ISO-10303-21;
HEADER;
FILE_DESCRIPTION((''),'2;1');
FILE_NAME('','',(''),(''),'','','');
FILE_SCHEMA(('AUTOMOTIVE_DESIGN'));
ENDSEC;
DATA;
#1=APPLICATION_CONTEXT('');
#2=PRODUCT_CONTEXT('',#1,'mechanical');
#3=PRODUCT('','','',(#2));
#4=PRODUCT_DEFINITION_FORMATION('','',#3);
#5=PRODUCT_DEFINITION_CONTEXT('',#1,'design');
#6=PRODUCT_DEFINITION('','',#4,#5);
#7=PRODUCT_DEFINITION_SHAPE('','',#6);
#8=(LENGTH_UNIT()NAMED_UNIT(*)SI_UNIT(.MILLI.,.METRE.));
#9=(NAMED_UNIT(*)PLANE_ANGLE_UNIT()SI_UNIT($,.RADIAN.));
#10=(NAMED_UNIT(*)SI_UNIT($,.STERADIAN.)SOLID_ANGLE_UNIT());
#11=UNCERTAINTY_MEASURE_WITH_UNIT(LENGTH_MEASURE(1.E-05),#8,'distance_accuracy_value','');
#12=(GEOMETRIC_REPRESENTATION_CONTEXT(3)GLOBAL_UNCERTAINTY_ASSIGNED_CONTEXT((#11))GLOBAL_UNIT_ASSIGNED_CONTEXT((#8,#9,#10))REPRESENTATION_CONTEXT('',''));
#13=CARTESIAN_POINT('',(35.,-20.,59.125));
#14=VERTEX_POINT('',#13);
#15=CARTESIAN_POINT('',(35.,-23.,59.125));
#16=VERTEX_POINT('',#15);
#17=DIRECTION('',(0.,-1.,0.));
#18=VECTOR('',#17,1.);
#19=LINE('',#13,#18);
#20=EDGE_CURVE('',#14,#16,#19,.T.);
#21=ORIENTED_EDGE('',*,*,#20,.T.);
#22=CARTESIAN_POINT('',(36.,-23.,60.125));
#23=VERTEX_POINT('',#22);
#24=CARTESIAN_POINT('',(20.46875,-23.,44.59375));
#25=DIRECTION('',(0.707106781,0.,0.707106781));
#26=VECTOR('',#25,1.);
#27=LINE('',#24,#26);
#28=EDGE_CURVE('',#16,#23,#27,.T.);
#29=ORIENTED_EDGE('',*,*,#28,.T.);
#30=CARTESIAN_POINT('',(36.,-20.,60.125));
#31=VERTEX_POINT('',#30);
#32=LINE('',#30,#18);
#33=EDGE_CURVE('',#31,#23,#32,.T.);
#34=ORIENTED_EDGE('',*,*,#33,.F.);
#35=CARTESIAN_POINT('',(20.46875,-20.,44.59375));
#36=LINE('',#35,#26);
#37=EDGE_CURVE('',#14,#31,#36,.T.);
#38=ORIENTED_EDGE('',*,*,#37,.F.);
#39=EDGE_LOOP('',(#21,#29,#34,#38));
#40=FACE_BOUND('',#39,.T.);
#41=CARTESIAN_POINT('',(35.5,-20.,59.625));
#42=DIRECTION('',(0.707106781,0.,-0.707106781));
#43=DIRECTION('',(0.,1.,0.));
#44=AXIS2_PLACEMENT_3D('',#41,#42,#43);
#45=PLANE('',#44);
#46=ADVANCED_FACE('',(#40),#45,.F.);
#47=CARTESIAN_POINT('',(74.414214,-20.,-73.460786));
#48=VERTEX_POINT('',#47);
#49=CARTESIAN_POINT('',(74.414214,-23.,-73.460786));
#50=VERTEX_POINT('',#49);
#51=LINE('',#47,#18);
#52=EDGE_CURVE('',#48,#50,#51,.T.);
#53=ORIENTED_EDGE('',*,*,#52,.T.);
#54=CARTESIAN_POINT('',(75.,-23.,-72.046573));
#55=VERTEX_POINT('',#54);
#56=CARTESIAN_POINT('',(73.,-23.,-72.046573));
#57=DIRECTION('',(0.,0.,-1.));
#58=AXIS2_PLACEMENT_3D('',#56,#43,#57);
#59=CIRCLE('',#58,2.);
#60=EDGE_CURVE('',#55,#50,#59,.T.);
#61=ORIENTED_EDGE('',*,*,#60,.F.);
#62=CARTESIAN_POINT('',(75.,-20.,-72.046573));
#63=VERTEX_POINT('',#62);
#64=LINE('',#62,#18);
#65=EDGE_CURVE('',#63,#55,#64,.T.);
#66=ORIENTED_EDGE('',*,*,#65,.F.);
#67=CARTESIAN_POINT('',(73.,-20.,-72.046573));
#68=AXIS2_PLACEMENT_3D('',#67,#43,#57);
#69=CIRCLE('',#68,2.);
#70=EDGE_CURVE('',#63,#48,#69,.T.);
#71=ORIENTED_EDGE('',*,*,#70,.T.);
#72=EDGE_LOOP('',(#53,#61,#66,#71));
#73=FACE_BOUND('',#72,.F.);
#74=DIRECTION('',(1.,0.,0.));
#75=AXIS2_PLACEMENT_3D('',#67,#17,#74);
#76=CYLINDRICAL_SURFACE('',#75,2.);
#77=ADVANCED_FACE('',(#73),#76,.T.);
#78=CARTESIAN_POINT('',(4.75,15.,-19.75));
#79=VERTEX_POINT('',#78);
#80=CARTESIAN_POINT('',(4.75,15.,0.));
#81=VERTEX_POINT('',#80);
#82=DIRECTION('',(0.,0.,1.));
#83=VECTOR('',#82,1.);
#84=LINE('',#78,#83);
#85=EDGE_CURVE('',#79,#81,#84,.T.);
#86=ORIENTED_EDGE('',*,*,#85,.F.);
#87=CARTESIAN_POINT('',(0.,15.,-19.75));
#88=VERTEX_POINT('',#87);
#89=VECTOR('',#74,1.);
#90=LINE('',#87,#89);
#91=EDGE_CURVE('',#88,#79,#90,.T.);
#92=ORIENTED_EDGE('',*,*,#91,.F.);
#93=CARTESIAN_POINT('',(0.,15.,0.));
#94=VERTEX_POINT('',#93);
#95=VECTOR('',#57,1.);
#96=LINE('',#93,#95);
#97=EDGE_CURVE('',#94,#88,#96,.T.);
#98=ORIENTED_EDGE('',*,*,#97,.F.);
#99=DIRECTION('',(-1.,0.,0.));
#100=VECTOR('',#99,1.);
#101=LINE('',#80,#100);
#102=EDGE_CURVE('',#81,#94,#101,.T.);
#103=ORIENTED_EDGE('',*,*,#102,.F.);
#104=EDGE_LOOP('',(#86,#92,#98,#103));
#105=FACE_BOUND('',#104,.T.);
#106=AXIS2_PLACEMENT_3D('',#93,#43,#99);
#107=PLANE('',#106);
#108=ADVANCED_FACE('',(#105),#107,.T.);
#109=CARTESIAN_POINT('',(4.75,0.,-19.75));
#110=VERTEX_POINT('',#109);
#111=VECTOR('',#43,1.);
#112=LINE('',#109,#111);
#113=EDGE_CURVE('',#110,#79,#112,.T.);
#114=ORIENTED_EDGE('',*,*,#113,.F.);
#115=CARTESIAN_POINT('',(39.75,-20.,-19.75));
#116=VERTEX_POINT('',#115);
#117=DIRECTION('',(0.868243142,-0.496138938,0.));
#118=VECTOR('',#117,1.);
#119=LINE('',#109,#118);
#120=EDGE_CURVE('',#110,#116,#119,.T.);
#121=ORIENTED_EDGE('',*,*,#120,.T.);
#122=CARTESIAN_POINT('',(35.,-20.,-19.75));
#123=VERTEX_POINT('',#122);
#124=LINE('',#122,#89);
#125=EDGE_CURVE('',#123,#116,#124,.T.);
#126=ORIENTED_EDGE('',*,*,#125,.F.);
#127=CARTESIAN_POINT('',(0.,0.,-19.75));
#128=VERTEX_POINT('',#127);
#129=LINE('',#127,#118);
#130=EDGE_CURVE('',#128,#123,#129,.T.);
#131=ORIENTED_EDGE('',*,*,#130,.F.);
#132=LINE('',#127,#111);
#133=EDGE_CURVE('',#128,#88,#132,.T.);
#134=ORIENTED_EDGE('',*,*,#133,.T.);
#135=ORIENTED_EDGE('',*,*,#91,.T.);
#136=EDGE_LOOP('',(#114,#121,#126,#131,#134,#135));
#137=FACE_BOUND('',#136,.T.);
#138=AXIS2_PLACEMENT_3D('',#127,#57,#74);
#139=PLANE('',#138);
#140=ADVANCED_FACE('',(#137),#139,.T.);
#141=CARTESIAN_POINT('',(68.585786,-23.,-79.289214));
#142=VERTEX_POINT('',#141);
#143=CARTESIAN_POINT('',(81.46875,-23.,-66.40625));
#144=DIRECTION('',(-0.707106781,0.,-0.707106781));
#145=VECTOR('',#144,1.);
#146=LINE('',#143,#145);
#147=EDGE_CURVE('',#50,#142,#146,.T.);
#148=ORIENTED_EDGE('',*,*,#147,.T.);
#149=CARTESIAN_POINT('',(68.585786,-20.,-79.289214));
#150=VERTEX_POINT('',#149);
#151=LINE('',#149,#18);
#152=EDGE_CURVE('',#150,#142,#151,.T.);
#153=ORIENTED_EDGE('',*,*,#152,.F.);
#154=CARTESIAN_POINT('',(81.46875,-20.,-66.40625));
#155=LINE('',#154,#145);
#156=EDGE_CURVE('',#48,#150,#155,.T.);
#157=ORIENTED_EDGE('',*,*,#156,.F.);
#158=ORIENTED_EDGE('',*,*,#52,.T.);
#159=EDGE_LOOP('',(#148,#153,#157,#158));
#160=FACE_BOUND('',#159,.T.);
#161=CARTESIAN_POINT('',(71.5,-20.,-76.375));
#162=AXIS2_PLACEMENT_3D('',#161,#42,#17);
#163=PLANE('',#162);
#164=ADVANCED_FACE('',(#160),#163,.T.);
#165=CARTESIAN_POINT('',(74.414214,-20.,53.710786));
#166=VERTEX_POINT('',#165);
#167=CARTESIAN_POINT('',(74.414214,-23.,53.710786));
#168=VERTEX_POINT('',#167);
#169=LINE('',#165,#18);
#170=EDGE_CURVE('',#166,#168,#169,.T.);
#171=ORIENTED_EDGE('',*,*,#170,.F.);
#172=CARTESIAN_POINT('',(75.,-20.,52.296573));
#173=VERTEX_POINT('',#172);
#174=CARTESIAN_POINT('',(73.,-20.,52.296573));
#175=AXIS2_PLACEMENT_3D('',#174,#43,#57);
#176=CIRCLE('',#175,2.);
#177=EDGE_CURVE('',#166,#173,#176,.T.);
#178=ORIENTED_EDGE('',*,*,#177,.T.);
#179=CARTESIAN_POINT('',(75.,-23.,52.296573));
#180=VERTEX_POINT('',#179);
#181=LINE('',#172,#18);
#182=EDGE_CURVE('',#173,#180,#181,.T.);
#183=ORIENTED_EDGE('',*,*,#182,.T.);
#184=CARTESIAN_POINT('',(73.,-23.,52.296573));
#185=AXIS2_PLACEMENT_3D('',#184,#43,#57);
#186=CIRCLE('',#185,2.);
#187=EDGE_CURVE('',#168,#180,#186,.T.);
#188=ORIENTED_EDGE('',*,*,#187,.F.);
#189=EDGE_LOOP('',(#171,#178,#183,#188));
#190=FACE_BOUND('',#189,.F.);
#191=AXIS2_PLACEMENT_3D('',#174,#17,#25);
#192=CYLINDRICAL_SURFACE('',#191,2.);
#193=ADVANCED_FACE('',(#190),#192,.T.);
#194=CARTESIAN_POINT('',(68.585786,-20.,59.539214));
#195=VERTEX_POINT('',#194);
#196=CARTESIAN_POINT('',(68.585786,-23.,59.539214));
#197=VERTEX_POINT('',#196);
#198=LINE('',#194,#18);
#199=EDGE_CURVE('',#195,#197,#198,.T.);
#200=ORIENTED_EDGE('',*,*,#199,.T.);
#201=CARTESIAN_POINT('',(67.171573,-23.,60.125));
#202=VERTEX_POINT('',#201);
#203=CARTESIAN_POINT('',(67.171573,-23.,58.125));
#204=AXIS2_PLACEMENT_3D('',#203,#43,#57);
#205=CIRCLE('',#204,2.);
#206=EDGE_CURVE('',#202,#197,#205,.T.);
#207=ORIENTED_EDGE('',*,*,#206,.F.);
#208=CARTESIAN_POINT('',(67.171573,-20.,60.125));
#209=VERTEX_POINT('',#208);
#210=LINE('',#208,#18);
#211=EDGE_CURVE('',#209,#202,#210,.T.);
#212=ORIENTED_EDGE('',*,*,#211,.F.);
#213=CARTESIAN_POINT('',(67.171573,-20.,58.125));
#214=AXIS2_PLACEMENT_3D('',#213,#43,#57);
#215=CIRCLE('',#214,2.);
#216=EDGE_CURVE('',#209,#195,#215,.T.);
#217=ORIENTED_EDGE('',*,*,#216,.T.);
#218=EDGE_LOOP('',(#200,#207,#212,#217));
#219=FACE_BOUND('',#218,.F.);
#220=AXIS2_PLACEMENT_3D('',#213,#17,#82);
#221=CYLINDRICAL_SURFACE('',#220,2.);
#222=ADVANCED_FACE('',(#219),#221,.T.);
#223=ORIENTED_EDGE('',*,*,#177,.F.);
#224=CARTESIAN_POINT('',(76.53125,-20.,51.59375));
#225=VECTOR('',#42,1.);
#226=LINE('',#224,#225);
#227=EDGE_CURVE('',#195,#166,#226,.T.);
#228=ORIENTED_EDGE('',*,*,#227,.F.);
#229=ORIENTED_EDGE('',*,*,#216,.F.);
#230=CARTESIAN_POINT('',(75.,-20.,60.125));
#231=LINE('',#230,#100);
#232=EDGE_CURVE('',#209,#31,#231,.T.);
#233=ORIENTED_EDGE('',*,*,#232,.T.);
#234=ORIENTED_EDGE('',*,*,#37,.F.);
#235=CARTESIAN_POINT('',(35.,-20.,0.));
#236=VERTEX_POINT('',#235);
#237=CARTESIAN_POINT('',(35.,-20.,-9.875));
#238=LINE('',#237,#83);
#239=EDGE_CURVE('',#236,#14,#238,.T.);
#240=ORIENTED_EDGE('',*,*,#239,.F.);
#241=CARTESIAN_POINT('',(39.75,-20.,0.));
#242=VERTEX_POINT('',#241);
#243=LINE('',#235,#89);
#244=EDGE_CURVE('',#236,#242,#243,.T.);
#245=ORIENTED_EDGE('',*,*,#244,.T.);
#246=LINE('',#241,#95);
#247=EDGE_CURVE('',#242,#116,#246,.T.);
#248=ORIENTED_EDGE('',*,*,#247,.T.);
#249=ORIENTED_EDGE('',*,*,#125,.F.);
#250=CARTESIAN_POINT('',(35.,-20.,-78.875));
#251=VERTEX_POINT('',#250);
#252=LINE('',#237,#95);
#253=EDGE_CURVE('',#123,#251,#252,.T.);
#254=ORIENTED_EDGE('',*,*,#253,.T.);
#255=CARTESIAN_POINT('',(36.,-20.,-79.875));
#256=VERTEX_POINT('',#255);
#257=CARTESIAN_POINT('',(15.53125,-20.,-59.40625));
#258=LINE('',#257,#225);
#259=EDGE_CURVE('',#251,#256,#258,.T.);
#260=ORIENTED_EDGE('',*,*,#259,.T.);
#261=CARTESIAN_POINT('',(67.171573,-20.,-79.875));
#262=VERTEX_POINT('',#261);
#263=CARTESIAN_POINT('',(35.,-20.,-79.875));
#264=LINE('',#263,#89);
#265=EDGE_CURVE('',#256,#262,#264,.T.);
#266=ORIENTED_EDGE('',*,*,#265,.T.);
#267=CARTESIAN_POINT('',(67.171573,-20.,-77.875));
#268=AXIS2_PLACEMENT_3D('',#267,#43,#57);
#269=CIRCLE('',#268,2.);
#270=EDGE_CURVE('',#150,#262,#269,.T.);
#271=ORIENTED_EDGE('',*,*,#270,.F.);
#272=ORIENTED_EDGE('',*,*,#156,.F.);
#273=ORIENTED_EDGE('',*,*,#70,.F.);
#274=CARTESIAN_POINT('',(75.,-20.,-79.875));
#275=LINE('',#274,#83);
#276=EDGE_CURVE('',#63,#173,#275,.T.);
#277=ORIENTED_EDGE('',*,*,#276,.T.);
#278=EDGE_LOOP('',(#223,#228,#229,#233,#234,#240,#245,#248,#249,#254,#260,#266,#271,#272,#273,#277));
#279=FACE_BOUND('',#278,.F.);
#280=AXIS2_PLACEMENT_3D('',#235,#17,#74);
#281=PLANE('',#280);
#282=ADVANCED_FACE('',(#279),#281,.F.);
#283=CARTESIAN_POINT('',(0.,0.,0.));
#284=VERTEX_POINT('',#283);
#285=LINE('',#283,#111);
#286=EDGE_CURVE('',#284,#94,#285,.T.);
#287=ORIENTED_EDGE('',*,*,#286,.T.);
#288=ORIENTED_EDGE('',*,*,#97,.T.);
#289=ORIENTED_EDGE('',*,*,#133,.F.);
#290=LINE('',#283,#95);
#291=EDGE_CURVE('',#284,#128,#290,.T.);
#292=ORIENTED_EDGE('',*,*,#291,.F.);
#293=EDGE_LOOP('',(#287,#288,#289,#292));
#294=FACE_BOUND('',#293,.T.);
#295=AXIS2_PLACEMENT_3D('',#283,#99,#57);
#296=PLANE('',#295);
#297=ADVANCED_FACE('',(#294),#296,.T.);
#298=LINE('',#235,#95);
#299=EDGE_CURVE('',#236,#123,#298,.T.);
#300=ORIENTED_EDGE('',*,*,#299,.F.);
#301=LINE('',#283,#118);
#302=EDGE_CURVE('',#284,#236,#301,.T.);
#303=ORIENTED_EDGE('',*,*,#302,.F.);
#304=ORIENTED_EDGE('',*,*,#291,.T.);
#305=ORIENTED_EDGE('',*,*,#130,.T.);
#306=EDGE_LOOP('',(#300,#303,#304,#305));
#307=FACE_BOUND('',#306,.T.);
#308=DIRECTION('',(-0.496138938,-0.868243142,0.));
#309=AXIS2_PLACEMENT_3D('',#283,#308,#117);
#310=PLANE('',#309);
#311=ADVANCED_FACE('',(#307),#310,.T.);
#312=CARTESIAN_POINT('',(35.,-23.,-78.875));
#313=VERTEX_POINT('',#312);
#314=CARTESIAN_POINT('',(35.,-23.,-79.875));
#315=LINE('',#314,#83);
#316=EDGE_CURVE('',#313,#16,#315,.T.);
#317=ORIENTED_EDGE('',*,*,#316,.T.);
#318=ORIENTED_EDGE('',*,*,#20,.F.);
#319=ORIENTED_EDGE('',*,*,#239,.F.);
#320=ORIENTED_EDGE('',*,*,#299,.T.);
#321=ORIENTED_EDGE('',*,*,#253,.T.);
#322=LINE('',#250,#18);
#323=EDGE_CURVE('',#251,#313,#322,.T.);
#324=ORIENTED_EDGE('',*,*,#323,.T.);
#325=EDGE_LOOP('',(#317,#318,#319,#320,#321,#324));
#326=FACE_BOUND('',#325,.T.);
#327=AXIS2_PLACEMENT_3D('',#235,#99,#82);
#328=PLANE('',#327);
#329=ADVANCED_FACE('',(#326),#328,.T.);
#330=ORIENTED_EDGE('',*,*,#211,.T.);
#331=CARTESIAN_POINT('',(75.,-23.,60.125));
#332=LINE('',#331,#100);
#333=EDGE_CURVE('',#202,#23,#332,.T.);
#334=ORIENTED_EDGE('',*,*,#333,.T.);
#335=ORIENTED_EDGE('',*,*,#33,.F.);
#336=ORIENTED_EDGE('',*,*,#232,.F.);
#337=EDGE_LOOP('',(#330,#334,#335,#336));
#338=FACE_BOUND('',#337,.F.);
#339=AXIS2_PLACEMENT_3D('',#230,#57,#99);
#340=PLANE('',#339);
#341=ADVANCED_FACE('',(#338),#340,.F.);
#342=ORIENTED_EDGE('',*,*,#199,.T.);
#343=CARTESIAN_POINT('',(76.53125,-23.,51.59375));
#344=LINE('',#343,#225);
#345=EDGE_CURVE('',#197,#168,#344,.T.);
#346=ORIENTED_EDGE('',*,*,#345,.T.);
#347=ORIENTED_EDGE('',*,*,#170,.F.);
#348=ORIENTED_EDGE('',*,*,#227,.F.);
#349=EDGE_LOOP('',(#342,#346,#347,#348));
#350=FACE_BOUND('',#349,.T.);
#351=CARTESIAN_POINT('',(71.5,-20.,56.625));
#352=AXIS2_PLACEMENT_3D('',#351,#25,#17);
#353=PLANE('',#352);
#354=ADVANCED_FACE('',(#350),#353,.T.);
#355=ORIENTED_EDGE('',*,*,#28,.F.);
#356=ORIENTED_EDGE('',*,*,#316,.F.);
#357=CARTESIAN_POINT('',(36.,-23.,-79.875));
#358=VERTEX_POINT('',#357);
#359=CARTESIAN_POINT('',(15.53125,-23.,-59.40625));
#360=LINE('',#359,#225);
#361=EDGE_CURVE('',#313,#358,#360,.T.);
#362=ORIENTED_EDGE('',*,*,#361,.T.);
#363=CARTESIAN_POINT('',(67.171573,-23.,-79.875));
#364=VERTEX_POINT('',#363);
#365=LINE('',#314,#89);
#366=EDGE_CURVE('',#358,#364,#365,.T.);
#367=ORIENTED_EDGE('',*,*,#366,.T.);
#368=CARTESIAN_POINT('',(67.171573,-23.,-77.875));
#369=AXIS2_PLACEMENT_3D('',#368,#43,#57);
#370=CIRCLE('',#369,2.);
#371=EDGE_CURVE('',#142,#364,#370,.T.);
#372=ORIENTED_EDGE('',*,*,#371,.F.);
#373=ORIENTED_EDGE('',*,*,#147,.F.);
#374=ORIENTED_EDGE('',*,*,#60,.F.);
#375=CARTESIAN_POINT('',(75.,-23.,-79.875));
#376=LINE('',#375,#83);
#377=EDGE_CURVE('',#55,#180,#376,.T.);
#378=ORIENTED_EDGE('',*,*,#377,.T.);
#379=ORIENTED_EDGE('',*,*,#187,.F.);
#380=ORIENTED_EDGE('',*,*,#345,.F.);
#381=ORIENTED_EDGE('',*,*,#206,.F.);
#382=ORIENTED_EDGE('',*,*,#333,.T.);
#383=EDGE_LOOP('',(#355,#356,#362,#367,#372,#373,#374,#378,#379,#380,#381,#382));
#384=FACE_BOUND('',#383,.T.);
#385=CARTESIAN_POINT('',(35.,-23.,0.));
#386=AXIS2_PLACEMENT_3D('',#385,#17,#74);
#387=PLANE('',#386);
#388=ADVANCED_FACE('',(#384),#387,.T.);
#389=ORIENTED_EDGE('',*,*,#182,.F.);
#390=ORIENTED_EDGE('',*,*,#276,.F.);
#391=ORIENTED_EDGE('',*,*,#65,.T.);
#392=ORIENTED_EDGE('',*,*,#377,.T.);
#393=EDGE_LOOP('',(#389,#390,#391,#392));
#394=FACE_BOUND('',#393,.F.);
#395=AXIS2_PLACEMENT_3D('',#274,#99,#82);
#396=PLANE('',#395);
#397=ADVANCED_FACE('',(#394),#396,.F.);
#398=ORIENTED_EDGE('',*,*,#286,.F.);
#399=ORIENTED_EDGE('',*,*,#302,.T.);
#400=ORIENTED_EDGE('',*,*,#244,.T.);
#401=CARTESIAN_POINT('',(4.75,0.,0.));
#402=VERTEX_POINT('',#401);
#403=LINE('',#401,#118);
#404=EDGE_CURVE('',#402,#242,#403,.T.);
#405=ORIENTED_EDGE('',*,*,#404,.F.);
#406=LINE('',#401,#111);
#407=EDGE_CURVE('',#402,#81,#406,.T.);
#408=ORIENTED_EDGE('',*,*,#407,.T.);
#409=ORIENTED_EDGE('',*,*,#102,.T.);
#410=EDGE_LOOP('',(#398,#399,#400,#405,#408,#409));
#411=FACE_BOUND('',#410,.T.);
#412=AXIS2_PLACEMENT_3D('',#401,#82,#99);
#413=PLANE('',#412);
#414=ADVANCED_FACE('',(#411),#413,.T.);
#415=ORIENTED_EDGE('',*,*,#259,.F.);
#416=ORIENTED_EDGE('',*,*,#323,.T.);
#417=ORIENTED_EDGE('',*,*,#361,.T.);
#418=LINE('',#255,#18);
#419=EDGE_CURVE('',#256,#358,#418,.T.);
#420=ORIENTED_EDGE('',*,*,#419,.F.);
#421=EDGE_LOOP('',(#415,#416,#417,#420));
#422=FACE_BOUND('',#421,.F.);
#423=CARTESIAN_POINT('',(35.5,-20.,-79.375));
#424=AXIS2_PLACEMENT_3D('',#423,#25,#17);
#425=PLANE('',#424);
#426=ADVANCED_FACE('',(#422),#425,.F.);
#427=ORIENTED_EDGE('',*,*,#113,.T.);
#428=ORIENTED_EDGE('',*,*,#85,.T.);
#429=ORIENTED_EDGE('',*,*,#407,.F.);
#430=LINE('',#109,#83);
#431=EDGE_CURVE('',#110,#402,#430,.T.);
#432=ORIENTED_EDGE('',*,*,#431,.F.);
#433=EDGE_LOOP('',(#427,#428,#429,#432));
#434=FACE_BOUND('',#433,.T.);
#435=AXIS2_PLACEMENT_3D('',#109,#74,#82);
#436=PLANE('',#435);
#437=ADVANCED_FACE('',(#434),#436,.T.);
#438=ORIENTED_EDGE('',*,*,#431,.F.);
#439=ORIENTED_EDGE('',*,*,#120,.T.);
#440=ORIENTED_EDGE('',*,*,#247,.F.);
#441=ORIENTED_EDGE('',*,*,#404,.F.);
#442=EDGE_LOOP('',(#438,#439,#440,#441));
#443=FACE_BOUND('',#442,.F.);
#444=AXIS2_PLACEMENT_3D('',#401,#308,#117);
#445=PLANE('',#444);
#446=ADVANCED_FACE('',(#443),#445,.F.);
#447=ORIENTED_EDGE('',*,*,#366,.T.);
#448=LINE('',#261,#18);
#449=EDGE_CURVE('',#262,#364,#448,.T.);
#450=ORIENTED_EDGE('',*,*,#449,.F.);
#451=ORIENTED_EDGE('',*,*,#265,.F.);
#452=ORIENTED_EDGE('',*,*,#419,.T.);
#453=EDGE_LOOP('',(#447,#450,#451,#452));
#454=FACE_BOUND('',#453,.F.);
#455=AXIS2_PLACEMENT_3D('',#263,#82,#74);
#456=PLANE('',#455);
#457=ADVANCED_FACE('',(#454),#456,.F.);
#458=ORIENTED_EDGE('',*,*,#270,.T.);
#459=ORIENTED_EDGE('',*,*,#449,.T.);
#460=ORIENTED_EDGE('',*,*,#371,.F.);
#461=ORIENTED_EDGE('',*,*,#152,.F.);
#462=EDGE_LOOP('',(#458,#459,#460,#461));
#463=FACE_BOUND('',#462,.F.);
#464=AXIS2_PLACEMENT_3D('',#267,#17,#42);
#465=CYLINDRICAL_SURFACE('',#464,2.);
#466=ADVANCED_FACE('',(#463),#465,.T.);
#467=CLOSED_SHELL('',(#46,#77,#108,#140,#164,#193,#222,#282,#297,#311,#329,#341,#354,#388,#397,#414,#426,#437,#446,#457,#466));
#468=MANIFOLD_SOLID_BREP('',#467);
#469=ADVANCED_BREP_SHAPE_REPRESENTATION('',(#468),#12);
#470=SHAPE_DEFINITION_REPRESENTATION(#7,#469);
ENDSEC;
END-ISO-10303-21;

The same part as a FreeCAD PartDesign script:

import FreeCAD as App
import Part
import Sketcher
from FreeCAD import Vector


def edges_at(feature, points):
    """Names of the edges that pass closest to the given points."""
    edges = feature.Shape.Edges
    near = lambda p: min(range(len(edges)), key=lambda i: edges[i].distToShape(Part.Vertex(*p))[0])
    return sorted({f"Edge{near(p) + 1}" for p in points})


def add_polygon(sketch, points):
    """Adds a closed chain of lines whose ends are joined by coincident constraints."""
    first, n = sketch.GeometryCount, len(points)
    for a, b in zip(points, points[1:] + points[:1]):
        sketch.addGeometry(Part.LineSegment(App.Vector(*a, 0), App.Vector(*b, 0)), False)
    for i in range(n):
        sketch.addConstraint(Sketcher.Constraint("Coincident", first + i, 2, first + (i + 1) % n, 1))

doc = App.newDocument("Part")
body = doc.addObject("PartDesign::Body", "Body")

# Sketch on XZ plane
sketch1 = doc.addObject("Sketcher::SketchObject", "Sketch")
body.addObject(sketch1)
sketch1.AttachmentSupport = (doc.XZ_Plane, [""])
sketch1.MapMode = "FlatFace"
add_polygon(sketch1, [(0, -19.8), (0, 0), (4.8, 0), (4.8, -19.8)])  # lines 0-3
sketch1.addConstraint(Sketcher.Constraint("Vertical", 0))
sketch1.addConstraint(Sketcher.Constraint("Horizontal", 1))
sketch1.addConstraint(Sketcher.Constraint("Vertical", 2))
sketch1.addConstraint(Sketcher.Constraint("Horizontal", 3))
sketch1.addConstraint(Sketcher.Constraint("Coincident", 0, 2, -1, 1))
sketch1.addConstraint(Sketcher.Constraint("DistanceX", 1, 1, 1, 2, 4.75))
sketch1.addConstraint(Sketcher.Constraint("DistanceY", 0, 1, 0, 2, 19.75))
pad1 = doc.addObject("PartDesign::Pad", "Pad")
body.addObject(pad1)
pad1.Profile = sketch1
pad1.Length = 15
pad1.Reversed = True

# Sketch on XY plane
sketch2 = doc.addObject("Sketcher::SketchObject", "Sketch001")
body.addObject(sketch2)
sketch2.AttachmentSupport = (doc.XY_Plane, [""])
sketch2.MapMode = "FlatFace"
add_polygon(sketch2, [(39.8, -20), (4.8, 0), (0, 0), (35, -20)])  # lines 0-3
sketch2.addConstraint(Sketcher.Constraint("Horizontal", 1))
sketch2.addConstraint(Sketcher.Constraint("Horizontal", 3))
sketch2.addConstraint(Sketcher.Constraint("Coincident", 1, 2, -1, 1))
sketch2.addConstraint(Sketcher.Constraint("Parallel", 0, 2))
sketch2.addConstraint(Sketcher.Constraint("DistanceX", -1, 1, 2, 2, 35.0))
sketch2.addConstraint(Sketcher.Constraint("DistanceY", 2, 2, -1, 1, 20.0))
sketch2.addConstraint(Sketcher.Constraint("DistanceX", 1, 2, 1, 1, 4.75))
pad2 = doc.addObject("PartDesign::Pad", "Pad001")
body.addObject(pad2)
pad2.Profile = sketch2
pad2.Length = 19.75
pad2.Reversed = True

# Sketch on XZ plane
sketch3 = doc.addObject("Sketcher::SketchObject", "Sketch002")
body.addObject(sketch3)
sketch3.AttachmentSupport = (doc.XZ_Plane, [""])
sketch3.MapMode = "FlatFace"
sketch3.AttachmentOffset = App.Placement(Vector(0, 0, 20), App.Rotation())
add_polygon(sketch3, [(35, 60), (35, -80), (75, -80), (75, 60)])  # lines 0-3
sketch3.addConstraint(Sketcher.Constraint("Vertical", 0))
sketch3.addConstraint(Sketcher.Constraint("Horizontal", 1))
sketch3.addConstraint(Sketcher.Constraint("Vertical", 2))
sketch3.addConstraint(Sketcher.Constraint("Horizontal", 3))
sketch3.addConstraint(Sketcher.Constraint("DistanceX", 1, 1, 1, 2, 40.0))
sketch3.addConstraint(Sketcher.Constraint("DistanceY", 0, 2, 0, 1, 140.0))
sketch3.addConstraint(Sketcher.Constraint("DistanceX", -1, 1, 0, 2, 35.0))
sketch3.addConstraint(Sketcher.Constraint("DistanceY", 0, 2, -1, 1, 79.875))
pad3 = doc.addObject("PartDesign::Pad", "Pad002")
body.addObject(pad3)
pad3.Profile = sketch3
pad3.Length = 3
doc.recompute()

chamfer = doc.addObject("PartDesign::Chamfer", "Chamfer")
body.addObject(chamfer)
chamfer.Base = (pad3, edges_at(pad3, [(35, -21.5, 60.125), (35, -21.5, -79.875)]))
chamfer.Size = 1
doc.recompute()

chamfer2 = doc.addObject("PartDesign::Chamfer", "Chamfer001")
body.addObject(chamfer2)
chamfer2.Base = (chamfer, edges_at(chamfer, [(75, -21.5, 60.125), (75, -21.5, -79.875)]))
chamfer2.Size = 7
doc.recompute()

fillet = doc.addObject("PartDesign::Fillet", "Fillet")
body.addObject(fillet)
fillet.Base = (chamfer2, edges_at(chamfer2, [
    (75, -21.5, 53.125),
    (68, -21.5, 60.125),
    (75, -21.5, -72.875),
    (68, -21.5, -79.875),
]))
fillet.Radius = 2

doc.recompute()
